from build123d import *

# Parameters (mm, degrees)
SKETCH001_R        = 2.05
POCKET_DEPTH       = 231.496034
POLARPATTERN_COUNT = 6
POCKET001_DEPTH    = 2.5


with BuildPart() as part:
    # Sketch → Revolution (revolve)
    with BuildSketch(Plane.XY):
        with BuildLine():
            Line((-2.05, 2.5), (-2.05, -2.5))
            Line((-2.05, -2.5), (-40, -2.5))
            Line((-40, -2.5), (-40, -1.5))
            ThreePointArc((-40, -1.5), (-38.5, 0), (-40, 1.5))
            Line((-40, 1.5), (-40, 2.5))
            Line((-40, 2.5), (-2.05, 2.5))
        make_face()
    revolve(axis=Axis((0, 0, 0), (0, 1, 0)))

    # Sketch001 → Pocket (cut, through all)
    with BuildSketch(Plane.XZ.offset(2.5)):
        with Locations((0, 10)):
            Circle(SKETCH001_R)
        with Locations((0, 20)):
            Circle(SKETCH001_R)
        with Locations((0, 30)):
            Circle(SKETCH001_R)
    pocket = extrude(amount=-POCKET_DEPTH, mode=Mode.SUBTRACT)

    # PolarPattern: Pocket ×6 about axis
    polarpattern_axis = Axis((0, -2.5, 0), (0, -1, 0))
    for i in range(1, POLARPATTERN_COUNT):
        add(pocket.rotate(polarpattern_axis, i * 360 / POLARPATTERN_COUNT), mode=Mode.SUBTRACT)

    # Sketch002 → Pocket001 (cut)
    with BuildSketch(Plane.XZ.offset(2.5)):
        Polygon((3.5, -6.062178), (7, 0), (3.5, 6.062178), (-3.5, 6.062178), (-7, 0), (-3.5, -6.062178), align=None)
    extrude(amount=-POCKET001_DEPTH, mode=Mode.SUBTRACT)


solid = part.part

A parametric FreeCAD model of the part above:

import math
import FreeCAD as App
import Part
import Sketcher
Q = App.Units.Quantity


def add_polygon(sketch, points):
    """Adds a closed chain of lines whose ends are joined by coincident constraints."""
    first, n = sketch.GeometryCount, len(points)
    for a, b in zip(points, points[1:] + points[:1]):
        sketch.addGeometry(Part.LineSegment(App.Vector(*a, 0), App.Vector(*b, 0)), False)
    for i in range(n):
        sketch.addConstraint(Sketcher.Constraint("Coincident", first + i, 2, first + (i + 1) % n, 1))

doc = App.newDocument("Part")
body = doc.addObject("PartDesign::Body", "Body")

# Sketch on XY plane
sketch1 = doc.addObject("Sketcher::SketchObject", "Sketch")
body.addObject(sketch1)
sketch1.AttachmentSupport = (doc.XY_Plane, [""])
sketch1.MapMode = "FlatFace"
sketch1.addGeometry([
    Part.LineSegment(App.Vector(-2, -2.5, 0), App.Vector(-2, 2.5, 0)),  # 0
    Part.LineSegment(App.Vector(-2, 2.5, 0), App.Vector(-40, 2.5, 0)),  # 1
    Part.LineSegment(App.Vector(-40, 2.5, 0), App.Vector(-40, 1.5, 0)),  # 2
    Part.ArcOfCircle(Part.Circle(App.Vector(-40, 0, 0), App.Vector(0, 0, 1), 1.5), math.radians(-90), math.radians(90)),  # 3
    Part.LineSegment(App.Vector(-40, -1.5, 0), App.Vector(-40, -2.5, 0)),  # 4
    Part.LineSegment(App.Vector(-40, -2.5, 0), App.Vector(-2, -2.5, 0)),  # 5
], False)
sketch1.addConstraint([
    Sketcher.Constraint("Coincident", 0, 2, 1, 1),
    Sketcher.Constraint("Coincident", 1, 2, 2, 1),
    Sketcher.Constraint("Coincident", 2, 2, 3, 2),
    Sketcher.Constraint("Coincident", 3, 1, 4, 1),
    Sketcher.Constraint("Coincident", 4, 2, 5, 1),
    Sketcher.Constraint("Coincident", 5, 2, 0, 1),
    Sketcher.Constraint("Vertical", 0),
    Sketcher.Constraint("Horizontal", 1),
    Sketcher.Constraint("Vertical", 2),
    Sketcher.Constraint("Vertical", 4),
    Sketcher.Constraint("Horizontal", 5),
    Sketcher.Constraint("Symmetric", 2, 2, 3, 1, -1),
    Sketcher.Constraint("Vertical", 3, 3, 1, 2),
    Sketcher.Constraint("Equal", 2, 4),
    Sketcher.Constraint("Radius", 3, 1.5),
    Sketcher.Constraint("DistanceY", 0, 1, 0, 2, 5.0),
    Sketcher.Constraint("DistanceX", 3, 3, -1, 1, 40.0),
    Sketcher.Constraint("DistanceX", 1, 2, 1, 1, 37.95),
])
revolution = doc.addObject("PartDesign::Revolution", "Revolution")
body.addObject(revolution)
revolution.Profile = sketch1
revolution.ReferenceAxis = (sketch1, ["V_Axis"])
revolution.Angle = 360

# Sketch on XZ plane
sketch2 = doc.addObject("Sketcher::SketchObject", "Sketch001")
body.addObject(sketch2)
sketch2.AttachmentSupport = (doc.XZ_Plane, [""])
sketch2.MapMode = "FlatFace"
sketch2.AttachmentOffset = App.Placement(App.Vector(0, 0, 2.5), App.Rotation())
sketch2.addGeometry([
    Part.Circle(App.Vector(0, 10, 0), App.Vector(0, 0, 1), 2),
    Part.Circle(App.Vector(0, 20, 0), App.Vector(0, 0, 1), 2),
    Part.Circle(App.Vector(0, 30, 0), App.Vector(0, 0, 1), 2),
], False)
sketch2.addConstraint([
    Sketcher.Constraint("Equal", 0, 1),
    Sketcher.Constraint("Equal", 1, 2),
    Sketcher.Constraint("PointOnObject", 0, 3, -2),
    Sketcher.Constraint("PointOnObject", 1, 3, -2),
    Sketcher.Constraint("PointOnObject", 2, 3, -2),
    Sketcher.Constraint("Diameter", 0, 4.1),
    Sketcher.Constraint("DistanceY", -1, 1, 0, 3, 10.0),
    Sketcher.Constraint("DistanceY", -1, 1, 1, 3, 20.0),
    Sketcher.Constraint("DistanceY", -1, 1, 2, 3, 30.0),
])
pocket1 = doc.addObject("PartDesign::Pocket", "Pocket")
body.addObject(pocket1)
pocket1.Profile = sketch2
pocket1.Type = "ThroughAll"
doc.recompute()

polarpattern = doc.addObject("PartDesign::PolarPattern", "PolarPattern")
body.addObject(polarpattern)
polarpattern.Originals = [pocket1]
polarpattern.Axis = (doc.Y_Axis, [""])
polarpattern.Angle = 360
polarpattern.Occurrences = 6
body.Tip = polarpattern

# Sketch on XZ plane
sketch3 = doc.addObject("Sketcher::SketchObject", "Sketch002")
body.addObject(sketch3)
sketch3.AttachmentSupport = (doc.XZ_Plane, [""])
sketch3.MapMode = "FlatFace"
sketch3.AttachmentOffset = App.Placement(App.Vector(0, 0, 2.5), App.Rotation())
add_polygon(sketch3, [(4, -6), (7, 0), (4, 6), (-4, 6), (-7, 0), (-4, -6)])  # lines 0-5
sketch3.addConstraint([
    Sketcher.Constraint("Horizontal", 2),
    Sketcher.Constraint("Horizontal", 5),
    Sketcher.Constraint("Symmetric", 0, 2, 3, 2, -1, 1),
    Sketcher.Constraint("Symmetric", 1, 2, 4, 2, -1, 1),
    Sketcher.Constraint("PointOnObject", 0, 2, -1),
    Sketcher.Constraint("Parallel", 0, 3),
    Sketcher.Constraint("Vertical", 2, 2, 4, 2),
    Sketcher.Constraint("DistanceX", 2, 2, 2, 1, 7.0),
    Sketcher.Constraint("Angle", 0, Q("60.000001 deg")),
    Sketcher.Constraint("Distance", 0, 7.0),
])
pocket2 = doc.addObject("PartDesign::Pocket", "Pocket001")
body.addObject(pocket2)
pocket2.Profile = sketch3
pocket2.Length = 2.5

doc.recompute()
